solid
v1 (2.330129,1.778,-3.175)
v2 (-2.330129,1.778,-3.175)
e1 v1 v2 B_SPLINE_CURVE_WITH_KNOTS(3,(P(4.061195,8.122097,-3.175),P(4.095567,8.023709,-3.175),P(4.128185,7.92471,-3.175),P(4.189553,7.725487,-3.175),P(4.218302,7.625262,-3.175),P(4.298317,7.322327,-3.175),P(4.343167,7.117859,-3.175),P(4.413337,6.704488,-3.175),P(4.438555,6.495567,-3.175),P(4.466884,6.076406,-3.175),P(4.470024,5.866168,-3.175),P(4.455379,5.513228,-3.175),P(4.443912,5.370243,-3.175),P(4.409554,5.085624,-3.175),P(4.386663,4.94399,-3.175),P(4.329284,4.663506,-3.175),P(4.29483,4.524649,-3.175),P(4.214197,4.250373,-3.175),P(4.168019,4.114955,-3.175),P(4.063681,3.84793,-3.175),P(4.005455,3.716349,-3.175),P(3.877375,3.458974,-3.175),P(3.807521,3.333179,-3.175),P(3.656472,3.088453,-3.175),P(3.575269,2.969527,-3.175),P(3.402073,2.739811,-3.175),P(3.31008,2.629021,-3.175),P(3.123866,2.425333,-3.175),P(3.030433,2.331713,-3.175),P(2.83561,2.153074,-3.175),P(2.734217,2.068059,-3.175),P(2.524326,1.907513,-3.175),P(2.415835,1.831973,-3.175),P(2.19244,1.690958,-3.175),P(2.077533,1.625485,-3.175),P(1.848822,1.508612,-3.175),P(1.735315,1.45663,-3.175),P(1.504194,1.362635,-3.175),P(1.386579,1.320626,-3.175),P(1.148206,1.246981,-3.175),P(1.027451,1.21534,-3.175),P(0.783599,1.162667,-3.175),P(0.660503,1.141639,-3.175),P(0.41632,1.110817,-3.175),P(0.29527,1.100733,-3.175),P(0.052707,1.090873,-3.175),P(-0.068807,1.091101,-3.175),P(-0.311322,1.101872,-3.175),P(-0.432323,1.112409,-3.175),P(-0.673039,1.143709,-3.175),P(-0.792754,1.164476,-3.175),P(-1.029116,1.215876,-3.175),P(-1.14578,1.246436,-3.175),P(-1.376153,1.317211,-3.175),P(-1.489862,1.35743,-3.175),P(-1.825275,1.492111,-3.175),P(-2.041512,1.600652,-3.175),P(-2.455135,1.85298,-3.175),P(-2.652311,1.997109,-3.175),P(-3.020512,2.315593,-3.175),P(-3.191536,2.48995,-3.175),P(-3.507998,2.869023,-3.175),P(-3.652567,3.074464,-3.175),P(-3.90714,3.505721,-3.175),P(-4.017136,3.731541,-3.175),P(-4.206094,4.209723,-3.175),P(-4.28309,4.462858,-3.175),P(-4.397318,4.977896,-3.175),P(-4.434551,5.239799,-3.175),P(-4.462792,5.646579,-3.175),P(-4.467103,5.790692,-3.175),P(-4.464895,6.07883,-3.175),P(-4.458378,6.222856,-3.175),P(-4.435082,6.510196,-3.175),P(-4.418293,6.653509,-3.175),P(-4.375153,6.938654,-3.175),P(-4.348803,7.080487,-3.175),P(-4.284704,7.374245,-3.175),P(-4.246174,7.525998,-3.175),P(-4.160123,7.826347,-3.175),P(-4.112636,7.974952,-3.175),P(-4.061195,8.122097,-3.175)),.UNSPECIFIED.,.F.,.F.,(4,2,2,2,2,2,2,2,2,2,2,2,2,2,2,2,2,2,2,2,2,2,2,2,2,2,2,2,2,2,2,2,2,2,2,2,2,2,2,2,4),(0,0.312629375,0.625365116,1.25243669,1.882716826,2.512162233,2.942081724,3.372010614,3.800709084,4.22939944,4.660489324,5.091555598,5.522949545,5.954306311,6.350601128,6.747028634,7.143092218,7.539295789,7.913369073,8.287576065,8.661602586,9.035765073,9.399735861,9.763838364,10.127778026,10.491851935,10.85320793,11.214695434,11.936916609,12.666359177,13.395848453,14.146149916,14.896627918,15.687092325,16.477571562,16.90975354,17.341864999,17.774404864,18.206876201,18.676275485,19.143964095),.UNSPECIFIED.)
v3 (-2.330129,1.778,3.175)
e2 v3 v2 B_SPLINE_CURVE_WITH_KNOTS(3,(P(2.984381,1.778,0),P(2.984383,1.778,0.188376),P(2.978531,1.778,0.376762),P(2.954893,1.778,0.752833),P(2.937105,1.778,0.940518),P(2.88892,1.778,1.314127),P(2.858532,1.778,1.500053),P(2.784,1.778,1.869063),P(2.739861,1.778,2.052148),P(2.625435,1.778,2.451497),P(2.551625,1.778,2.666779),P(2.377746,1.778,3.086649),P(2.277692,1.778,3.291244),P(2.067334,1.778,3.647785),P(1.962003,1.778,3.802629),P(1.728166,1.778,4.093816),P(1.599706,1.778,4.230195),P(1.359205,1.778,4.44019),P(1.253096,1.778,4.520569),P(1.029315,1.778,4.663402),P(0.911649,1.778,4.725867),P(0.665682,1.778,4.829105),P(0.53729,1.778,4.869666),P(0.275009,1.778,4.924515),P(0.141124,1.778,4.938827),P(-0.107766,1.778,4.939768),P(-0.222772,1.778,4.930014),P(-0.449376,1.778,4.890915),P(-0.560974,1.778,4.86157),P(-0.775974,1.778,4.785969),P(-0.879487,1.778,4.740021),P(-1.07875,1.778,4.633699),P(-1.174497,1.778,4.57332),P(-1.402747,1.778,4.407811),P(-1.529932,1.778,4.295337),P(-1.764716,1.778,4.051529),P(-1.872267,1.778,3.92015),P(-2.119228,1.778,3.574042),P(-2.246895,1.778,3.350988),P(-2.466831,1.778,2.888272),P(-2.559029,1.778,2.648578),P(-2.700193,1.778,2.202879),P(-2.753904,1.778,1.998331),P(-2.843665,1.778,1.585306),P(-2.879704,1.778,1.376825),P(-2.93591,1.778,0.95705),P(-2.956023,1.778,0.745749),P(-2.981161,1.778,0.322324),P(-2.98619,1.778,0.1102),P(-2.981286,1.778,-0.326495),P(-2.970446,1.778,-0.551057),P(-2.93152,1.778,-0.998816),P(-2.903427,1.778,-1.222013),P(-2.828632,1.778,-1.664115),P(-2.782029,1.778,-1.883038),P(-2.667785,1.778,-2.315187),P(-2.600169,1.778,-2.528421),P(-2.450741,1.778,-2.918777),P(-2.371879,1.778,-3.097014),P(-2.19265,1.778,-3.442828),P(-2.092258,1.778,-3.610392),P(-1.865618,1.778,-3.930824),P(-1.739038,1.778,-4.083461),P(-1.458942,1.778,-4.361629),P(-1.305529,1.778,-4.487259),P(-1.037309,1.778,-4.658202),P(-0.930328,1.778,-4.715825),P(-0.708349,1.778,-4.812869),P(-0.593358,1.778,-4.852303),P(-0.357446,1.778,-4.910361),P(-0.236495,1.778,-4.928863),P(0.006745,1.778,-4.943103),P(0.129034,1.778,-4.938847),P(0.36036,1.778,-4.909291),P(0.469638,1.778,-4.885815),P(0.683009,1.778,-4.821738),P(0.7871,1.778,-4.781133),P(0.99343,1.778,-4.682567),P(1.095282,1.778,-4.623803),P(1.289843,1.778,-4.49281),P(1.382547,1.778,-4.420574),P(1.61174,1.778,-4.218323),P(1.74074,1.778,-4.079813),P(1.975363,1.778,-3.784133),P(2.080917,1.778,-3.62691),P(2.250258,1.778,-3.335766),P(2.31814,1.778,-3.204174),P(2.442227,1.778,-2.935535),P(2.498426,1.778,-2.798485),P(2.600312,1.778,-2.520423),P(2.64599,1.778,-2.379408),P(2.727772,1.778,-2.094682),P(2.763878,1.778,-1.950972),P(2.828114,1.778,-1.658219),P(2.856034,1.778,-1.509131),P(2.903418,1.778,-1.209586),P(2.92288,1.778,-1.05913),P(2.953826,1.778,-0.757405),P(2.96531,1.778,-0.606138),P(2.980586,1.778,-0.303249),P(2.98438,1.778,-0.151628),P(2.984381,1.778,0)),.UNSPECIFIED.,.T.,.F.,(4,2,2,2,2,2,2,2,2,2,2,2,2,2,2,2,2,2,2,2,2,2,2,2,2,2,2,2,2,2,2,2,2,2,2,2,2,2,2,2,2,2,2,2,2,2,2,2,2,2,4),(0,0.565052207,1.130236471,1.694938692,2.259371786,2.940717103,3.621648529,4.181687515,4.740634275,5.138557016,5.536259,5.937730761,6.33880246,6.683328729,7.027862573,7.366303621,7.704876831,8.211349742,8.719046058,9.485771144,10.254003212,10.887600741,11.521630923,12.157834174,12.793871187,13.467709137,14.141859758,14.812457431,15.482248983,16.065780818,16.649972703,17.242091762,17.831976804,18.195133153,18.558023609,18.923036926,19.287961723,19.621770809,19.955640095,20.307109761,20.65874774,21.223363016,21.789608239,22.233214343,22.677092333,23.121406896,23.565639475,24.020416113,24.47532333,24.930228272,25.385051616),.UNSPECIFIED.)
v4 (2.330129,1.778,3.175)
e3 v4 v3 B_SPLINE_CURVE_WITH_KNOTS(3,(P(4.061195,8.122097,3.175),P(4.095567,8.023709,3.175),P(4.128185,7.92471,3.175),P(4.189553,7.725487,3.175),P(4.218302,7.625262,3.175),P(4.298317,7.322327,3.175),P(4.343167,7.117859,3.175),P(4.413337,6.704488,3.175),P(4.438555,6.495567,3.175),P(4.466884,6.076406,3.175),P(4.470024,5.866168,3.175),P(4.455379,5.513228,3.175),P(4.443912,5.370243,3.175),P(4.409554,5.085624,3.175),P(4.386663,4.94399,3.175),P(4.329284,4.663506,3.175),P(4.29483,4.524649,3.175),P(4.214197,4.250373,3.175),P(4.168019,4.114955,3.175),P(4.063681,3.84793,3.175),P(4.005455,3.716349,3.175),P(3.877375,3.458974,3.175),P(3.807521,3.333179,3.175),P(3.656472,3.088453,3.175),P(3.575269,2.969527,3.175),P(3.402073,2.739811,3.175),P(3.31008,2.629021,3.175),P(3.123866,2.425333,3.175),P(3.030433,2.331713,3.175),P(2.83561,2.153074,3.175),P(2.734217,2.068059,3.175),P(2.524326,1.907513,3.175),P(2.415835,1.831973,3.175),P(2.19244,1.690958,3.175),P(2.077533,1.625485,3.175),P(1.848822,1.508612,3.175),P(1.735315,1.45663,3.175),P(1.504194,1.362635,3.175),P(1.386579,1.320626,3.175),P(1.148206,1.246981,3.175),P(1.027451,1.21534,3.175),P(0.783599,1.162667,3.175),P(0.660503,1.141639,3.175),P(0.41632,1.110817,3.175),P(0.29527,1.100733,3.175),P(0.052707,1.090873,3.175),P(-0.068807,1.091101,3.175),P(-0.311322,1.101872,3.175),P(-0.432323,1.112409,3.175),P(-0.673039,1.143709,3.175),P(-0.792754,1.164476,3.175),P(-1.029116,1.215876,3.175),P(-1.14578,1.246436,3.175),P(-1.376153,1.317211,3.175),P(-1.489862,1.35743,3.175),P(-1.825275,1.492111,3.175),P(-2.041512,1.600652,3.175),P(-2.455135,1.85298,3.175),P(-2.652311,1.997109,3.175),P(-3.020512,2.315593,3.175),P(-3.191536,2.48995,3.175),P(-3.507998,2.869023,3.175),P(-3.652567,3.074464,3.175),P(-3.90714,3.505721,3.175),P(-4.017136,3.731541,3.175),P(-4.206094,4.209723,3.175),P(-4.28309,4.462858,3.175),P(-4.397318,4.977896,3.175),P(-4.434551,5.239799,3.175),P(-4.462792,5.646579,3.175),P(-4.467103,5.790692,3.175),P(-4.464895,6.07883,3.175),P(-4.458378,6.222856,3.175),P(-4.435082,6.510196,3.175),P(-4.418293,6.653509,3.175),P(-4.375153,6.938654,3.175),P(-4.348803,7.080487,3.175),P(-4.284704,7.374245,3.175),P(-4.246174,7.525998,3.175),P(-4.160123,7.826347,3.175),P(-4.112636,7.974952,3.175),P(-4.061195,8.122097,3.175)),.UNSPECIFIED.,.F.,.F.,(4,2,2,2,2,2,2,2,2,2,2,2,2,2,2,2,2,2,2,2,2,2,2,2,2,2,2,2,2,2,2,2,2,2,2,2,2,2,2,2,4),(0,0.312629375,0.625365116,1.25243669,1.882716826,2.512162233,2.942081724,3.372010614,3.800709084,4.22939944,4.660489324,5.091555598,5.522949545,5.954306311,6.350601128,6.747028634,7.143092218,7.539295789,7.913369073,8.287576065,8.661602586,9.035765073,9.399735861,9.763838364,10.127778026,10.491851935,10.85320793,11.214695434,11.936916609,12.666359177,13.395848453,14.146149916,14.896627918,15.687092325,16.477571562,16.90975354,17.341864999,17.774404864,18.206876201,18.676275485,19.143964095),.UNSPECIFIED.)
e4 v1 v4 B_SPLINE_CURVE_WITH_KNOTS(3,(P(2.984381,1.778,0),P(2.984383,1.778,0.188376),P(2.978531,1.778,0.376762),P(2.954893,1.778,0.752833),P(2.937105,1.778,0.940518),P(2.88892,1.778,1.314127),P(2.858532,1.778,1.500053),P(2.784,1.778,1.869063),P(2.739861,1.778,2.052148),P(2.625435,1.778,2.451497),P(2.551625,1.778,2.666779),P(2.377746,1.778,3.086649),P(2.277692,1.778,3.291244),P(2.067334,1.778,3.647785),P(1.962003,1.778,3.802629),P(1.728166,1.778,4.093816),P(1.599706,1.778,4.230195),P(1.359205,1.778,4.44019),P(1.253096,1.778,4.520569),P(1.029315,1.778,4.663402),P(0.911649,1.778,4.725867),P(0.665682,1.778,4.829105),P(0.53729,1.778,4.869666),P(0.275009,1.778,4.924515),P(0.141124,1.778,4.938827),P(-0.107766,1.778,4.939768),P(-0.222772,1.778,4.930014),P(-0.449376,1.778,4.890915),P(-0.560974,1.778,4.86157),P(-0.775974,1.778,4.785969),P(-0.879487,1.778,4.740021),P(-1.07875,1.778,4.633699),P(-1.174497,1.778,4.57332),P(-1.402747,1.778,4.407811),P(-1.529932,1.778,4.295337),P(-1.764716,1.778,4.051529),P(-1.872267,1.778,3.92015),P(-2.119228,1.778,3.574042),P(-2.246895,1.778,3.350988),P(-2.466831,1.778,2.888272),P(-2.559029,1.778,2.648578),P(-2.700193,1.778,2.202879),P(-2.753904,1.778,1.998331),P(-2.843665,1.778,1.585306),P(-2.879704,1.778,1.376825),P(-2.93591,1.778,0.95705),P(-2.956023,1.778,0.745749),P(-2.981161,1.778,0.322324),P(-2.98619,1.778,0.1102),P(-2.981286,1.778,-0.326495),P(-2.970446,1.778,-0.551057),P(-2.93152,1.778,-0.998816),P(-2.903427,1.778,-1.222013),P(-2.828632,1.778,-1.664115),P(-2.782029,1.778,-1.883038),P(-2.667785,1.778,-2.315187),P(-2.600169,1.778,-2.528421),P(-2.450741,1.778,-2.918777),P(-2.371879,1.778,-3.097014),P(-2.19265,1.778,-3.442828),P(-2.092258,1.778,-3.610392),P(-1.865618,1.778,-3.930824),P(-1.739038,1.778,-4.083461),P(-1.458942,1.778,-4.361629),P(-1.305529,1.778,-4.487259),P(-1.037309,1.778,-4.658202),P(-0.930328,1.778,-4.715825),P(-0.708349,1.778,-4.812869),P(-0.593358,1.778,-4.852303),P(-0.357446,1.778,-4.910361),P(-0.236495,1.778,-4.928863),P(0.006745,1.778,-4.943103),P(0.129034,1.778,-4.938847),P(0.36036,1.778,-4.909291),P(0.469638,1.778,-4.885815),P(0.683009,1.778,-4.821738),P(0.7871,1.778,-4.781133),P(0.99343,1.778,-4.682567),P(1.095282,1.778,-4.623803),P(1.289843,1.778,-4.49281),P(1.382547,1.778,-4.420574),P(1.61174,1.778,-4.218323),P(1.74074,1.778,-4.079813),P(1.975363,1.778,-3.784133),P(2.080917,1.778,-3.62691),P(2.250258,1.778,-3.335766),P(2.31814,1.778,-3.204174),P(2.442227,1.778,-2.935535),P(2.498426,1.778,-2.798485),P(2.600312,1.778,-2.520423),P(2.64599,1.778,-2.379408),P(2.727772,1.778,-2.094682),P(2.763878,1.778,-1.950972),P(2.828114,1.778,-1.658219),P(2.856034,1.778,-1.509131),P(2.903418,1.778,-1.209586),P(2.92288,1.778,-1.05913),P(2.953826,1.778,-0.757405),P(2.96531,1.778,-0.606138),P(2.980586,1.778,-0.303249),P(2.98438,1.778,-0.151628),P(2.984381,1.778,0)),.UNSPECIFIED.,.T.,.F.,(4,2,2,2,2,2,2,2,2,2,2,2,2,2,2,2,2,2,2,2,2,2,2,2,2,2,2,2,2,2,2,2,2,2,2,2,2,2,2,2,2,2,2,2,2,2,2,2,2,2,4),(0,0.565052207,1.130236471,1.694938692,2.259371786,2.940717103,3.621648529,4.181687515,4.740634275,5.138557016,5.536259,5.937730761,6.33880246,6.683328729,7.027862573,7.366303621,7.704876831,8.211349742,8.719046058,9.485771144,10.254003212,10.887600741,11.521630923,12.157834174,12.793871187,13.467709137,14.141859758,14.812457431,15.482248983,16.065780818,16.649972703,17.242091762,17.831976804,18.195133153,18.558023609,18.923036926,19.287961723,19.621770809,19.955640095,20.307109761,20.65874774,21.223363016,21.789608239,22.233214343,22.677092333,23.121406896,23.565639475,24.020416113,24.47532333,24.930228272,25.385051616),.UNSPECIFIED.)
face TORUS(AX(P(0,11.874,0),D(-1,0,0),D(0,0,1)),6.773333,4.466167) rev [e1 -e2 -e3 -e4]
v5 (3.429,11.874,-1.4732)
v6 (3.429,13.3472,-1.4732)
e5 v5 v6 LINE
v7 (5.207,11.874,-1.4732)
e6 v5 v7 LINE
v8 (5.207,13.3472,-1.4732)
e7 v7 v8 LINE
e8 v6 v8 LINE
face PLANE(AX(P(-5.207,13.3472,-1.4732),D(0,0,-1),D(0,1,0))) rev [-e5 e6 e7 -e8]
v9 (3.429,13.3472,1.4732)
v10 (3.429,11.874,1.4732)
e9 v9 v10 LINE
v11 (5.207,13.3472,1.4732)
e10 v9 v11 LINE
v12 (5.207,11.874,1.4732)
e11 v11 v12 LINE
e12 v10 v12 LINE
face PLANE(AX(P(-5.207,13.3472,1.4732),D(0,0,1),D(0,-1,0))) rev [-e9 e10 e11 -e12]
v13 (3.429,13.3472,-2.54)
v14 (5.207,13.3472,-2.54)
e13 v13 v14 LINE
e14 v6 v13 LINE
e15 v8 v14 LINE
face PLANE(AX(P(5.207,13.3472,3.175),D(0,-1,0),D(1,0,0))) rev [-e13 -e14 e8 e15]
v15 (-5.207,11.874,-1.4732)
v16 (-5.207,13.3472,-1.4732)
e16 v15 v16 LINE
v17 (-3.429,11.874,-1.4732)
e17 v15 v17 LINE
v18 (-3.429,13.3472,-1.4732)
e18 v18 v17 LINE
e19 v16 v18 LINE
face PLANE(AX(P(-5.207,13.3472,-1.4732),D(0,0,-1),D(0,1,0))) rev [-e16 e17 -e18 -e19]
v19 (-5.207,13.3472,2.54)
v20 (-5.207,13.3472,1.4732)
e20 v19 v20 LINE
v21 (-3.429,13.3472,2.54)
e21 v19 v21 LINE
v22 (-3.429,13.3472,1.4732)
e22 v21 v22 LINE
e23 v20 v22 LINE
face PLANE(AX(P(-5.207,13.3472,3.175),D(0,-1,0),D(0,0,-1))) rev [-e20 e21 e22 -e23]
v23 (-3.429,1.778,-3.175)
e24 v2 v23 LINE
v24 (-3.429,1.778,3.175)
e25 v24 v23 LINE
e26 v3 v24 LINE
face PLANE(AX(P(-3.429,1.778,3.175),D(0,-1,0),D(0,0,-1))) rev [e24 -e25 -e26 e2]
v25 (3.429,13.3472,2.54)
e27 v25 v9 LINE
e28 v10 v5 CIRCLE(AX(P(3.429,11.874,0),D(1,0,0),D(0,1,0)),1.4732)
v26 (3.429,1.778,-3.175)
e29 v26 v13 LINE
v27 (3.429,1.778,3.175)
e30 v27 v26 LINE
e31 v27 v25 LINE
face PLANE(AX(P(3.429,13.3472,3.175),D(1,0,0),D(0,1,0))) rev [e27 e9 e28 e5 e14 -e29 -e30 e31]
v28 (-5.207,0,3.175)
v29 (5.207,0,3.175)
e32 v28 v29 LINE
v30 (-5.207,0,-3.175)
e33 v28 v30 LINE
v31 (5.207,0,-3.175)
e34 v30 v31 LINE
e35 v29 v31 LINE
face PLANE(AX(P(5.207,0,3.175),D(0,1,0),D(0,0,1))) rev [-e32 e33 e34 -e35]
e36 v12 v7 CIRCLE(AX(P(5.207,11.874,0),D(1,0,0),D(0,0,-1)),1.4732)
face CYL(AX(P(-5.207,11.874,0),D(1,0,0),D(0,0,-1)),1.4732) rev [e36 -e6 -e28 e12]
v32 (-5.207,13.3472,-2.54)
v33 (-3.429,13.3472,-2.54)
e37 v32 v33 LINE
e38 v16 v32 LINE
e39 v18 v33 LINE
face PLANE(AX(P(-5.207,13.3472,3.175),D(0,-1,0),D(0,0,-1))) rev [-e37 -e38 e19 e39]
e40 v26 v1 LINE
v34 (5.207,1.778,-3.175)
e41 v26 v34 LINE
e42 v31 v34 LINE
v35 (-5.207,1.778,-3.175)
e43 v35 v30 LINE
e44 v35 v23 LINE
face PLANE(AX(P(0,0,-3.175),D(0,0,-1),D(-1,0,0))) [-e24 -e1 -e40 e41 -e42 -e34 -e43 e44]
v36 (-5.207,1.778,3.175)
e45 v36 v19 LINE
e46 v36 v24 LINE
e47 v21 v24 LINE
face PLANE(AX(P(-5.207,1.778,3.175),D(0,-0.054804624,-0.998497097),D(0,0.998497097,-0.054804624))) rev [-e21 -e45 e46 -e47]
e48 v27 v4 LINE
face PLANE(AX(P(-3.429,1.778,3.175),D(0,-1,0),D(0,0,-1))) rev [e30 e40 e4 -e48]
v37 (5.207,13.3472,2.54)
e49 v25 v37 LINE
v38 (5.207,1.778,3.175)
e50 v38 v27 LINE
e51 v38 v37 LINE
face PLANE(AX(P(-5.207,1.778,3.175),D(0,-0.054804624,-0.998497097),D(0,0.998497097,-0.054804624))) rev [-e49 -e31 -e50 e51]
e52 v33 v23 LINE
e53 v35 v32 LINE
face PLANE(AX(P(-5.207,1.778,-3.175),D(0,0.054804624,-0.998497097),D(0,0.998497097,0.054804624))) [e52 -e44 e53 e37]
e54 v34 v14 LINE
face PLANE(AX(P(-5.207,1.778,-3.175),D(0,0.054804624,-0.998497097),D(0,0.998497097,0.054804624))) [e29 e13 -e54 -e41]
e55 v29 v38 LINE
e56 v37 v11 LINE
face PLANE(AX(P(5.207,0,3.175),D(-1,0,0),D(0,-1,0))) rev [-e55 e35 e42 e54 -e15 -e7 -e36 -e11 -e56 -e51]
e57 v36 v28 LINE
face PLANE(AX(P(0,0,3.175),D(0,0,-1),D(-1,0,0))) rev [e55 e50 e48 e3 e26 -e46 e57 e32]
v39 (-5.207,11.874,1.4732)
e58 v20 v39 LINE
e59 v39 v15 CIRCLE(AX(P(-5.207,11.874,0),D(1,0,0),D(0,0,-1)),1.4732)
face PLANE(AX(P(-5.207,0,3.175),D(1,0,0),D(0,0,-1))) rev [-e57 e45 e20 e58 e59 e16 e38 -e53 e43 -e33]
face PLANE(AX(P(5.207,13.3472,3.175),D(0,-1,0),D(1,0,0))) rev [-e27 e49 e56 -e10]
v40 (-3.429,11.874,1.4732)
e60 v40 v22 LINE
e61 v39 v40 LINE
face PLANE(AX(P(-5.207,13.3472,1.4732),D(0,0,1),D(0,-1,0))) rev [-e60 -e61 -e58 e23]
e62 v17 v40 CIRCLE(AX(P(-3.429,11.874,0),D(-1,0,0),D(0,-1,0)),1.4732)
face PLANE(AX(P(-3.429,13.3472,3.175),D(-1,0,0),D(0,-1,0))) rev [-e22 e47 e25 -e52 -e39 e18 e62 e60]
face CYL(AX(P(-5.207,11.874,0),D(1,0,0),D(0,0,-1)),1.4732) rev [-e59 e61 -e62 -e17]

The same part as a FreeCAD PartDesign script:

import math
import FreeCAD as App
import Part
import Sketcher

V = App.Vector
Q = App.Units.Quantity


def add_polygon(sketch, points):
    """Adds a closed chain of lines whose ends are joined by coincident constraints."""
    first, n = sketch.GeometryCount, len(points)
    for a, b in zip(points, points[1:] + points[:1]):
        sketch.addGeometry(Part.LineSegment(App.Vector(*a, 0), App.Vector(*b, 0)), False)
    for i in range(n):
        sketch.addConstraint(Sketcher.Constraint("Coincident", first + i, 2, first + (i + 1) % n, 1))

doc = App.newDocument("Part")
params = doc.addObject("Spreadsheet::Sheet", "Params")
for row, (alias, value) in enumerate([
    ("sketch1_width", "0.41 in"),
    ("sketch1_width2", "0.07 in"),
    ("pad1_length", "0.25 in"),
    ("sketch2_radius", "0.058 in"),
    ("sketch2_width", "0.058 in"),
    ("sketch3_height", "0.025 in"),
    ("pocket2_length", "31.349019 mm"),
    ("groove_angle", "360 deg"),
], start=1):
    params.set(f"A{row}", alias)
    params.set(f"B{row}", "=" + value)
    params.setAlias(f"B{row}", alias)

body = doc.addObject("PartDesign::Body", "Body")

# Sketch on XY plane
sketch1 = doc.addObject("Sketcher::SketchObject", "Sketch")
body.addObject(sketch1)
sketch1.AttachmentSupport = (doc.XY_Plane, [""])
sketch1.MapMode = "FlatFace"
add_polygon(sketch1, [(-5.2, 0), (5.2, 0), (5.2, 13.3), (3.4, 13.3), (3.4, 1.8), (-3.4, 1.8), (-3.4, 13.3), (-5.2, 13.3)])  # lines 0-7
sketch1.addConstraint([
    Sketcher.Constraint("Horizontal", 0),
    Sketcher.Constraint("Vertical", 1),
    Sketcher.Constraint("Horizontal", 2),
    Sketcher.Constraint("Vertical", 3),
    Sketcher.Constraint("Horizontal", 4),
    Sketcher.Constraint("Vertical", 5),
    Sketcher.Constraint("Horizontal", 6),
    Sketcher.Constraint("Vertical", 7),
    Sketcher.Constraint("Symmetric", 0, 2, 7, 2, -1, 1),
    Sketcher.Constraint("Symmetric", 2, 2, 5, 2, -2),
    Sketcher.Constraint("DistanceX", 0, 1, 0, 2, Q("0.41 in")),
    Sketcher.Constraint("DistanceX", 2, 2, 2, 1, Q("0.07 in")),
    Sketcher.Constraint("DistanceY", -1, 1, 3, 2, Q("0.07 in")),
    Sketcher.Constraint("DistanceY", 1, 1, 1, 2, 13.3472),
])
sketch1.setExpression("Constraints[18]", "Params.sketch1_width")
sketch1.setExpression("Constraints[19]", "Params.sketch1_width2")
pad1 = doc.addObject("PartDesign::Pad", "Pad")
body.addObject(pad1)
pad1.Profile = sketch1
pad1.setExpression("Length", "Params.pad1_length")
pad1.Midplane = True

# Sketch on YZ plane
sketch2 = doc.addObject("Sketcher::SketchObject", "Sketch001")
body.addObject(sketch2)
sketch2.AttachmentSupport = (doc.YZ_Plane, [""])
sketch2.MapMode = "FlatFace"
sketch2.addGeometry([
    Part.LineSegment(V(11.9, -1.5, 0), V(13.3, -1.5, 0)),
    Part.ArcOfCircle(Part.Circle(V(13.3, 0, 0), V(0, 0, 1), 1.5), math.radians(-90), math.radians(90)),
    Part.LineSegment(V(13.3, 1.5, 0), V(11.9, 1.5, 0)),
    Part.ArcOfCircle(Part.Circle(V(11.9, 0, 0), V(0, 0, 1), 1.5), math.radians(90), math.radians(270)),
], False)
sketch2.addConstraint([
    Sketcher.Constraint("Tangent", 0, 2, 1, 1),
    Sketcher.Constraint("Tangent", 1, 2, 2, 1),
    Sketcher.Constraint("Tangent", 2, 2, 3, 1),
    Sketcher.Constraint("Tangent", 3, 2, 0, 1),
    Sketcher.Constraint("Horizontal", 0),
    Sketcher.Constraint("Horizontal", 2),
    Sketcher.Constraint("PointOnObject", 1, 3, -1),
    Sketcher.Constraint("Radius", 1, Q("0.058 in")),
    Sketcher.Constraint("DistanceX", 0, 1, 0, 2, Q("0.058 in")),
    Sketcher.Constraint("DistanceX", -1, 1, 1, 3, 13.3472),
])
sketch2.setExpression("Constraints[7]", "Params.sketch2_radius")
sketch2.setExpression("Constraints[8]", "Params.sketch2_width")
pocket1 = doc.addObject("PartDesign::Pocket", "Pocket")
body.addObject(pocket1)
pocket1.Profile = sketch2
pocket1.Type = "ThroughAll"
pocket1.Midplane = True

# Sketch on YZ plane
sketch3 = doc.addObject("Sketcher::SketchObject", "Sketch002")
body.addObject(sketch3)
sketch3.AttachmentSupport = (doc.YZ_Plane, [""])
sketch3.MapMode = "FlatFace"
add_polygon(sketch3, [(13.3, 3.2), (1.8, 3.2), (13.3, 2.5)])  # lines 0-2
sketch3.addConstraint([
    Sketcher.Constraint("Horizontal", 0),
    Sketcher.Constraint("Vertical", 2),
    Sketcher.Constraint("DistanceY", -1, 1, 1, 2, Q("0.1 in")),
    Sketcher.Constraint("DistanceY", 2, 1, 2, 2, Q("0.025 in")),
    Sketcher.Constraint("DistanceX", -1, 1, 0, 2, Q("0.07 in")),
    Sketcher.Constraint("DistanceX", 0, 2, 0, 1, 11.5692),
])
sketch3.setExpression("Constraints[6]", "Params.sketch3_height")
pocket2 = doc.addObject("PartDesign::Pocket", "Pocket001")
body.addObject(pocket2)
pocket2.Profile = sketch3
pocket2.setExpression("Length", "Params.pocket2_length")
pocket2.Midplane = True
doc.recompute()

mirrored = doc.addObject("PartDesign::Mirrored", "Mirrored")
body.addObject(mirrored)
mirrored.Originals = [pocket2]
mirrored.MirrorPlane = (doc.XY_Plane, [""])
body.Tip = mirrored

# Sketch on XY plane
sketch4 = doc.addObject("Sketcher::SketchObject", "Sketch003")
body.addObject(sketch4)
sketch4.AttachmentSupport = (doc.XY_Plane, [""])
sketch4.MapMode = "FlatFace"
sketch4.addGeometry([
    Part.LineSegment(V(3.1, 1.9, 0), V(-3.1, 1.9, 0)),
    Part.ArcOfCircle(Part.Circle(V(0, 5.1, 0), V(0, 0, 1), 4.5), math.radians(-134), math.radians(-46)),
], False)
sketch4.addGeometry(Part.LineSegment(V(-3.1, 11.9, 0), V(3.1, 11.9, 0)), True)  # axis
sketch4.addConstraint([
    Sketcher.Constraint("Coincident", 0, 1, 1, 2),
    Sketcher.Constraint("Coincident", 1, 1, 0, 2),
    Sketcher.Constraint("Horizontal", 0),
    Sketcher.Constraint("Horizontal", 2),
    Sketcher.Constraint("PointOnObject", 1, 3, -2),
    Sketcher.Constraint("Vertical", 1, 1, 2, 1),
    Sketcher.Constraint("Vertical", 0, 1, 2, 2),
    Sketcher.Constraint("DistanceY", -1, 1, 0, 1, Q("0.075 in")),
    Sketcher.Constraint("Radius", 1, 4.466167),
    Sketcher.Constraint("DistanceY", -1, 1, 2, 1, 11.874),
    Sketcher.Constraint("DistanceX", 0, 2, 0, 1, 6.239987),
])
groove = doc.addObject("PartDesign::Groove", "Groove")
body.addObject(groove)
groove.Profile = sketch4
groove.ReferenceAxis = (sketch4, ["Axis0"])
groove.setExpression("Angle", "Params.groove_angle")

doc.recompute()
